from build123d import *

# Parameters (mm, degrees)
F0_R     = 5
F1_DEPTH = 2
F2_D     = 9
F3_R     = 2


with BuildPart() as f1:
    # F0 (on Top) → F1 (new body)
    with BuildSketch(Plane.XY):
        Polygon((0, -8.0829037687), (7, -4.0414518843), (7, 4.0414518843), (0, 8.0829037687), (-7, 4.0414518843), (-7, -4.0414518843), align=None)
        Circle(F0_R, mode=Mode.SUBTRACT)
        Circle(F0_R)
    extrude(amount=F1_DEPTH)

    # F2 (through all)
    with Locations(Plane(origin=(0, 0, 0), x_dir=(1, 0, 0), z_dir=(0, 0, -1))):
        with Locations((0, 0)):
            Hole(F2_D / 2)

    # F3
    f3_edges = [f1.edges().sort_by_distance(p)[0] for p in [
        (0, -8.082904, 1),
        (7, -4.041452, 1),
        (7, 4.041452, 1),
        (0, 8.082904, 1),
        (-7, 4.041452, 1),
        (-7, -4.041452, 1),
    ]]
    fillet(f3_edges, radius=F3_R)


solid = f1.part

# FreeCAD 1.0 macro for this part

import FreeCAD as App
import Part
import Sketcher

V = App.Vector
Q = App.Units.Quantity


def edges_at(feature, points):
    """Names of the edges that pass closest to the given points."""
    edges = feature.Shape.Edges
    near = lambda p: min(range(len(edges)), key=lambda i: edges[i].distToShape(Part.Vertex(*p))[0])
    return sorted({f"Edge{near(p) + 1}" for p in points})

doc = App.newDocument("Part")
body = doc.addObject("PartDesign::Body", "Body")

sketch1 = body.newObject("Sketcher::SketchObject", "Sketch")
sketch1.AttachmentSupport = (doc.getObject("XY_Plane"), [""])
sketch1.MapMode = "FlatFace"
sketch1.addGeometry(Part.LineSegment(V(0, -8, 0), V(7, -4, 0)), False)
sketch1.addGeometry(Part.LineSegment(V(7, -4, 0), V(7, 4, 0)), False)
sketch1.addGeometry(Part.LineSegment(V(7, 4, 0), V(0, 8, 0)), False)
sketch1.addGeometry(Part.LineSegment(V(0, 8, 0), V(-7, 4, 0)), False)
sketch1.addGeometry(Part.LineSegment(V(-7, 4, 0), V(-7, -4, 0)), False)
sketch1.addGeometry(Part.LineSegment(V(-7, -4, 0), V(0, -8, 0)), False)
sketch1.addConstraint(Sketcher.Constraint("Coincident", 0, 2, 1, 1))
sketch1.addConstraint(Sketcher.Constraint("Coincident", 1, 2, 2, 1))
sketch1.addConstraint(Sketcher.Constraint("Coincident", 2, 2, 3, 1))
sketch1.addConstraint(Sketcher.Constraint("Coincident", 3, 2, 4, 1))
sketch1.addConstraint(Sketcher.Constraint("Coincident", 4, 2, 5, 1))
sketch1.addConstraint(Sketcher.Constraint("Coincident", 5, 2, 0, 1))
sketch1.addConstraint(Sketcher.Constraint("Vertical", 1))
sketch1.addConstraint(Sketcher.Constraint("Vertical", 4))
sketch1.addConstraint(Sketcher.Constraint("Symmetric", 0, 2, 3, 2, -1, 1))
sketch1.addConstraint(Sketcher.Constraint("Symmetric", 2, 2, 5, 2, -1, 1))
sketch1.addConstraint(Sketcher.Constraint("PointOnObject", 2, 2, -2))
sketch1.addConstraint(Sketcher.Constraint("Parallel", 2, 5))
sketch1.addConstraint(Sketcher.Constraint("Horizontal", 1, 2, 3, 2))
sketch1.addConstraint(Sketcher.Constraint("Angle", 0, Q("30 deg")))
sketch1.addConstraint(Sketcher.Constraint("DistanceX", -1, 1, 0, 2, Q("7 mm")))
sketch1.addConstraint(Sketcher.Constraint("DistanceY", 1, 1, 1, 2, Q("8.082904 mm")))
pad1 = body.newObject("PartDesign::Pad", "Pad")
pad1.Profile = sketch1
pad1.Length = 2

sketch2 = body.newObject("Sketcher::SketchObject", "Sketch001")
sketch2.AttachmentSupport = (doc.getObject("XY_Plane"), [""])
sketch2.MapMode = "FlatFace"
sketch2.addGeometry(Part.Circle(V(0, 0, 0), V(0, 0, 1), 4.5), False)
sketch2.addConstraint(Sketcher.Constraint("Coincident", 0, 3, -1, 1))
sketch2.addConstraint(Sketcher.Constraint("Diameter", 0, Q("9 mm")))
doc.recompute()
hole = body.newObject("PartDesign::Hole", "Hole")
hole.Profile = sketch2
hole.ThreadType = "None"
hole.Diameter = 9
hole.DepthType = "ThroughAll"
hole.Reversed = True
doc.recompute()

fillet = body.newObject("PartDesign::Fillet", "Fillet")
fillet.Base = (hole, edges_at(hole, [
    (0, -8.083, 1),
    (7, -4.041, 1),
    (7, 4.041, 1),
    (0, 8.083, 1),
    (-7, 4.041, 1),
    (-7, -4.041, 1),
]))
fillet.Radius = 2

doc.recompute()
